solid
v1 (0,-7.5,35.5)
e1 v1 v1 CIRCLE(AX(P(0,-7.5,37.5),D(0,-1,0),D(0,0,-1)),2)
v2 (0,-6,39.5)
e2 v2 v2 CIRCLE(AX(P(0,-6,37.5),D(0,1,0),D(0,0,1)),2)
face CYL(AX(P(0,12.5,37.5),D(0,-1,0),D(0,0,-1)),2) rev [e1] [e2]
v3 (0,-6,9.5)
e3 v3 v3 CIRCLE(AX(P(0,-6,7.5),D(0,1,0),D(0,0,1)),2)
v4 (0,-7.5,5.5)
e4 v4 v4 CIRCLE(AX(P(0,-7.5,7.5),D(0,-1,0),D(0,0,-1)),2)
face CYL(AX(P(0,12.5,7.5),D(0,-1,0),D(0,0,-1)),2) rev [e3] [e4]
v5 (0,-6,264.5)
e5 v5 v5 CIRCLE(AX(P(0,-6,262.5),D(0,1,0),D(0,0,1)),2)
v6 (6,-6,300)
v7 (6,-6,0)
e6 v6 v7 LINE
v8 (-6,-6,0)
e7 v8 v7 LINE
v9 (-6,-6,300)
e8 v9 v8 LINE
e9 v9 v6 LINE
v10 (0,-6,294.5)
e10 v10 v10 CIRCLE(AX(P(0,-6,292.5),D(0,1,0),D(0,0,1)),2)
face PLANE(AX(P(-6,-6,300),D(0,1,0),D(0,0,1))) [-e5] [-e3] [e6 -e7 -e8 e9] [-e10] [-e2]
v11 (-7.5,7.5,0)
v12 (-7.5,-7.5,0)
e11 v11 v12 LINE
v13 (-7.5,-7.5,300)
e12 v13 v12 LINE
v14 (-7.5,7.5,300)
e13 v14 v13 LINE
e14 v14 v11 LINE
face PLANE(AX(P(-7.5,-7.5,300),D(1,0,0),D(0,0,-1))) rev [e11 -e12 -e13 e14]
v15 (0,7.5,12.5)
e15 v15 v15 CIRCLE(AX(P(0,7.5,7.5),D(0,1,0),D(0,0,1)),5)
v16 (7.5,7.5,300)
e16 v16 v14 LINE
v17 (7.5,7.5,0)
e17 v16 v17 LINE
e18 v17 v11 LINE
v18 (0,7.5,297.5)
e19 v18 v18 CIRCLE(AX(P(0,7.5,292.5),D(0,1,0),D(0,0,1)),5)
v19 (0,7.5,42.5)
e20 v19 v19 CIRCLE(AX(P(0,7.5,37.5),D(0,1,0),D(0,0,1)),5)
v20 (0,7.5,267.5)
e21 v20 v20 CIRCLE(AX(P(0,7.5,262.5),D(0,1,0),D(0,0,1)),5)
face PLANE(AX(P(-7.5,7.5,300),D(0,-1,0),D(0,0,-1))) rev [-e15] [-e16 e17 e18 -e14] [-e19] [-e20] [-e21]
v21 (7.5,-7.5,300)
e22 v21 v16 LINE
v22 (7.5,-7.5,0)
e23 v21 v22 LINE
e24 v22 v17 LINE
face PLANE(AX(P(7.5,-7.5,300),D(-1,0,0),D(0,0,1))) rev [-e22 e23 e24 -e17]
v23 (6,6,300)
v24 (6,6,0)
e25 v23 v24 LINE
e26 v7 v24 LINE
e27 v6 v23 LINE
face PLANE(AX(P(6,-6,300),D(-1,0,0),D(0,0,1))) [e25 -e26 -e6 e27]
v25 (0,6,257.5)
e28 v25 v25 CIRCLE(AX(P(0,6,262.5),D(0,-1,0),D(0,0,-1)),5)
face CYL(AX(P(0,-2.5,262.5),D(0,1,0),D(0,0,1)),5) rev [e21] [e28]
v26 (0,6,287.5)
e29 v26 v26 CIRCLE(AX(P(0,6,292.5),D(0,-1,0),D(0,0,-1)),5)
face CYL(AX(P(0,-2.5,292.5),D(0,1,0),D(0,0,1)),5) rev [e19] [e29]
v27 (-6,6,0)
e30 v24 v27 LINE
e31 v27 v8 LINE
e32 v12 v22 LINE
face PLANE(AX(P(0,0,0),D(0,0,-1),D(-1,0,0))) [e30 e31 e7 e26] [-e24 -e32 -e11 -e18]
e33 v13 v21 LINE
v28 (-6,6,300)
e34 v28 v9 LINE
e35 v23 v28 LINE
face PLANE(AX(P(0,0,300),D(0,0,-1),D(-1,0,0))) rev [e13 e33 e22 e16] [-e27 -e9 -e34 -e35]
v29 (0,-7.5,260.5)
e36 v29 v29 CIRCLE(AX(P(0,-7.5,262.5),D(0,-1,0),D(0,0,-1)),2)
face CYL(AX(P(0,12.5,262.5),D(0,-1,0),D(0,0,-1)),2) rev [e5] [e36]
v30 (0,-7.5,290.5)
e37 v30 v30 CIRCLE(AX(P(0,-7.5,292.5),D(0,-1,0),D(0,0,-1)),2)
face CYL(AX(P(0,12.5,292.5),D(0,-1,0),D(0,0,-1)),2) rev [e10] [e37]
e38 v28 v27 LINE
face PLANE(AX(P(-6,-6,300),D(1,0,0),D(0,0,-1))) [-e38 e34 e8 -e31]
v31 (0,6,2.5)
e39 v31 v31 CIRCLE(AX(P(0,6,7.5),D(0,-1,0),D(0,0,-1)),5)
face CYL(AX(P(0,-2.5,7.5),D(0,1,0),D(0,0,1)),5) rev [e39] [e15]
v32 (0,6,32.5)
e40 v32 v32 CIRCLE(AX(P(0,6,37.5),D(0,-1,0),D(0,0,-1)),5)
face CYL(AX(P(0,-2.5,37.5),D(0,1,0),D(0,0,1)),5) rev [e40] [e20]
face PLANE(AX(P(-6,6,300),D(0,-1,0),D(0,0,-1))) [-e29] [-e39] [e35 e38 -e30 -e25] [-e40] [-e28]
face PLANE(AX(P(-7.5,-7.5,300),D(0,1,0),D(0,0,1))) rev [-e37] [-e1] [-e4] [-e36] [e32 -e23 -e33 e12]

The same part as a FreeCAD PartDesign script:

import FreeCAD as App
import Part
import Sketcher

doc = App.newDocument("Part")
body = doc.addObject("PartDesign::Body", "Body")

sketch1 = body.newObject("Sketcher::SketchObject", "Sketch")
sketch1.AttachmentSupport = (doc.getObject("XY_Plane"), [""])
sketch1.MapMode = "FlatFace"
sketch1.addGeometry([
    Part.LineSegment(App.Vector(-8, 8, 0), App.Vector(-8, -8, 0)),
    Part.LineSegment(App.Vector(-8, -8, 0), App.Vector(8, -8, 0)),
    Part.LineSegment(App.Vector(8, -8, 0), App.Vector(8, 8, 0)),
    Part.LineSegment(App.Vector(8, 8, 0), App.Vector(-8, 8, 0)),
    Part.LineSegment(App.Vector(6, -6, 0), App.Vector(-6, -6, 0)),
    Part.LineSegment(App.Vector(-6, -6, 0), App.Vector(-6, 6, 0)),
    Part.LineSegment(App.Vector(-6, 6, 0), App.Vector(6, 6, 0)),
    Part.LineSegment(App.Vector(6, 6, 0), App.Vector(6, -6, 0)),
], False)
sketch1.addConstraint([
    Sketcher.Constraint("Coincident", 0, 2, 1, 1),
    Sketcher.Constraint("Coincident", 1, 2, 2, 1),
    Sketcher.Constraint("Coincident", 2, 2, 3, 1),
    Sketcher.Constraint("Coincident", 3, 2, 0, 1),
    Sketcher.Constraint("Coincident", 4, 2, 5, 1),
    Sketcher.Constraint("Coincident", 5, 2, 6, 1),
    Sketcher.Constraint("Coincident", 6, 2, 7, 1),
    Sketcher.Constraint("Coincident", 7, 2, 4, 1),
    Sketcher.Constraint("Vertical", 0),
    Sketcher.Constraint("Horizontal", 1),
    Sketcher.Constraint("Vertical", 2),
    Sketcher.Constraint("Horizontal", 3),
    Sketcher.Constraint("Horizontal", 4),
    Sketcher.Constraint("Vertical", 5),
    Sketcher.Constraint("Horizontal", 6),
    Sketcher.Constraint("Vertical", 7),
    Sketcher.Constraint("Symmetric", 0, 2, 2, 2, -1, 1),
    Sketcher.Constraint("Symmetric", 4, 2, 6, 2, -1, 1),
    Sketcher.Constraint("Equal", 3, 0),
    Sketcher.Constraint("Equal", 6, 5),
    Sketcher.Constraint("DistanceX", 1, 1, 1, 2, 15.0),
    Sketcher.Constraint("DistanceX", 4, 2, 4, 1, 12.0),
])
pad1 = body.newObject("PartDesign::Pad", "Pad")
pad1.Profile = sketch1
pad1.Length = 300

sketch2 = body.newObject("Sketcher::SketchObject", "Sketch001")
sketch2.AttachmentSupport = (doc.getObject("XZ_Plane"), [""])
sketch2.MapMode = "FlatFace"
sketch2.AttachmentOffset = App.Placement(App.Vector(0, 0, 7.5), App.Rotation())
sketch2.addGeometry([
    Part.Circle(App.Vector(0, 37.5, 0), App.Vector(0, 0, 1), 2),
    Part.Circle(App.Vector(0, 7.5, 0), App.Vector(0, 0, 1), 2),
    Part.Circle(App.Vector(0, 292.5, 0), App.Vector(0, 0, 1), 2),
    Part.Circle(App.Vector(0, 262.5, 0), App.Vector(0, 0, 1), 2),
], False)
sketch2.addConstraint([
    Sketcher.Constraint("Equal", 0, 1),
    Sketcher.Constraint("Equal", 1, 2),
    Sketcher.Constraint("Equal", 2, 3),
    Sketcher.Constraint("PointOnObject", 0, 3, -2),
    Sketcher.Constraint("PointOnObject", 1, 3, -2),
    Sketcher.Constraint("PointOnObject", 2, 3, -2),
    Sketcher.Constraint("PointOnObject", 3, 3, -2),
    Sketcher.Constraint("Diameter", 0, 4.0),
    Sketcher.Constraint("DistanceY", 1, 3, 0, 3, 30.0),
    Sketcher.Constraint("DistanceY", 0, 3, 2, 3, 255.0),
    Sketcher.Constraint("DistanceY", 3, 3, 2, 3, 30.0),
    Sketcher.Constraint("DistanceY", -1, 1, 0, 3, 37.5),
])
pocket1 = body.newObject("PartDesign::Pocket", "Pocket")
pocket1.Profile = sketch2
pocket1.Length = 20

sketch3 = body.newObject("Sketcher::SketchObject", "Sketch002")
sketch3.AttachmentSupport = (doc.getObject("XZ_Plane"), [""])
sketch3.MapMode = "FlatFace"
sketch3.AttachmentOffset = App.Placement(App.Vector(0, 0, -7.5), App.Rotation())
sketch3.addGeometry([
    Part.Circle(App.Vector(0, 292, 0), App.Vector(0, 0, 1), 5),
    Part.Circle(App.Vector(0, 262, 0), App.Vector(0, 0, 1), 5),
    Part.Circle(App.Vector(0, 38, 0), App.Vector(0, 0, 1), 5),
    Part.Circle(App.Vector(0, 8, 0), App.Vector(0, 0, 1), 5),
], False)
sketch3.addConstraint([
    Sketcher.Constraint("Equal", 0, 1),
    Sketcher.Constraint("Equal", 1, 2),
    Sketcher.Constraint("Equal", 2, 3),
    Sketcher.Constraint("PointOnObject", 0, 3, -2),
    Sketcher.Constraint("PointOnObject", 1, 3, -2),
    Sketcher.Constraint("PointOnObject", 2, 3, -2),
    Sketcher.Constraint("PointOnObject", 3, 3, -2),
    Sketcher.Constraint("Diameter", 0, 10.0),
    Sketcher.Constraint("DistanceY", 1, 3, 0, 3, 30.0),
    Sketcher.Constraint("DistanceY", 2, 3, 1, 3, 225.0),
    Sketcher.Constraint("DistanceY", 3, 3, 2, 3, 30.0),
    Sketcher.Constraint("DistanceY", -1, 1, 0, 3, 292.5),
])
pocket2 = body.newObject("PartDesign::Pocket", "Pocket001")
pocket2.Profile = sketch3
pocket2.Length = 10
pocket2.Reversed = True

doc.recompute()
